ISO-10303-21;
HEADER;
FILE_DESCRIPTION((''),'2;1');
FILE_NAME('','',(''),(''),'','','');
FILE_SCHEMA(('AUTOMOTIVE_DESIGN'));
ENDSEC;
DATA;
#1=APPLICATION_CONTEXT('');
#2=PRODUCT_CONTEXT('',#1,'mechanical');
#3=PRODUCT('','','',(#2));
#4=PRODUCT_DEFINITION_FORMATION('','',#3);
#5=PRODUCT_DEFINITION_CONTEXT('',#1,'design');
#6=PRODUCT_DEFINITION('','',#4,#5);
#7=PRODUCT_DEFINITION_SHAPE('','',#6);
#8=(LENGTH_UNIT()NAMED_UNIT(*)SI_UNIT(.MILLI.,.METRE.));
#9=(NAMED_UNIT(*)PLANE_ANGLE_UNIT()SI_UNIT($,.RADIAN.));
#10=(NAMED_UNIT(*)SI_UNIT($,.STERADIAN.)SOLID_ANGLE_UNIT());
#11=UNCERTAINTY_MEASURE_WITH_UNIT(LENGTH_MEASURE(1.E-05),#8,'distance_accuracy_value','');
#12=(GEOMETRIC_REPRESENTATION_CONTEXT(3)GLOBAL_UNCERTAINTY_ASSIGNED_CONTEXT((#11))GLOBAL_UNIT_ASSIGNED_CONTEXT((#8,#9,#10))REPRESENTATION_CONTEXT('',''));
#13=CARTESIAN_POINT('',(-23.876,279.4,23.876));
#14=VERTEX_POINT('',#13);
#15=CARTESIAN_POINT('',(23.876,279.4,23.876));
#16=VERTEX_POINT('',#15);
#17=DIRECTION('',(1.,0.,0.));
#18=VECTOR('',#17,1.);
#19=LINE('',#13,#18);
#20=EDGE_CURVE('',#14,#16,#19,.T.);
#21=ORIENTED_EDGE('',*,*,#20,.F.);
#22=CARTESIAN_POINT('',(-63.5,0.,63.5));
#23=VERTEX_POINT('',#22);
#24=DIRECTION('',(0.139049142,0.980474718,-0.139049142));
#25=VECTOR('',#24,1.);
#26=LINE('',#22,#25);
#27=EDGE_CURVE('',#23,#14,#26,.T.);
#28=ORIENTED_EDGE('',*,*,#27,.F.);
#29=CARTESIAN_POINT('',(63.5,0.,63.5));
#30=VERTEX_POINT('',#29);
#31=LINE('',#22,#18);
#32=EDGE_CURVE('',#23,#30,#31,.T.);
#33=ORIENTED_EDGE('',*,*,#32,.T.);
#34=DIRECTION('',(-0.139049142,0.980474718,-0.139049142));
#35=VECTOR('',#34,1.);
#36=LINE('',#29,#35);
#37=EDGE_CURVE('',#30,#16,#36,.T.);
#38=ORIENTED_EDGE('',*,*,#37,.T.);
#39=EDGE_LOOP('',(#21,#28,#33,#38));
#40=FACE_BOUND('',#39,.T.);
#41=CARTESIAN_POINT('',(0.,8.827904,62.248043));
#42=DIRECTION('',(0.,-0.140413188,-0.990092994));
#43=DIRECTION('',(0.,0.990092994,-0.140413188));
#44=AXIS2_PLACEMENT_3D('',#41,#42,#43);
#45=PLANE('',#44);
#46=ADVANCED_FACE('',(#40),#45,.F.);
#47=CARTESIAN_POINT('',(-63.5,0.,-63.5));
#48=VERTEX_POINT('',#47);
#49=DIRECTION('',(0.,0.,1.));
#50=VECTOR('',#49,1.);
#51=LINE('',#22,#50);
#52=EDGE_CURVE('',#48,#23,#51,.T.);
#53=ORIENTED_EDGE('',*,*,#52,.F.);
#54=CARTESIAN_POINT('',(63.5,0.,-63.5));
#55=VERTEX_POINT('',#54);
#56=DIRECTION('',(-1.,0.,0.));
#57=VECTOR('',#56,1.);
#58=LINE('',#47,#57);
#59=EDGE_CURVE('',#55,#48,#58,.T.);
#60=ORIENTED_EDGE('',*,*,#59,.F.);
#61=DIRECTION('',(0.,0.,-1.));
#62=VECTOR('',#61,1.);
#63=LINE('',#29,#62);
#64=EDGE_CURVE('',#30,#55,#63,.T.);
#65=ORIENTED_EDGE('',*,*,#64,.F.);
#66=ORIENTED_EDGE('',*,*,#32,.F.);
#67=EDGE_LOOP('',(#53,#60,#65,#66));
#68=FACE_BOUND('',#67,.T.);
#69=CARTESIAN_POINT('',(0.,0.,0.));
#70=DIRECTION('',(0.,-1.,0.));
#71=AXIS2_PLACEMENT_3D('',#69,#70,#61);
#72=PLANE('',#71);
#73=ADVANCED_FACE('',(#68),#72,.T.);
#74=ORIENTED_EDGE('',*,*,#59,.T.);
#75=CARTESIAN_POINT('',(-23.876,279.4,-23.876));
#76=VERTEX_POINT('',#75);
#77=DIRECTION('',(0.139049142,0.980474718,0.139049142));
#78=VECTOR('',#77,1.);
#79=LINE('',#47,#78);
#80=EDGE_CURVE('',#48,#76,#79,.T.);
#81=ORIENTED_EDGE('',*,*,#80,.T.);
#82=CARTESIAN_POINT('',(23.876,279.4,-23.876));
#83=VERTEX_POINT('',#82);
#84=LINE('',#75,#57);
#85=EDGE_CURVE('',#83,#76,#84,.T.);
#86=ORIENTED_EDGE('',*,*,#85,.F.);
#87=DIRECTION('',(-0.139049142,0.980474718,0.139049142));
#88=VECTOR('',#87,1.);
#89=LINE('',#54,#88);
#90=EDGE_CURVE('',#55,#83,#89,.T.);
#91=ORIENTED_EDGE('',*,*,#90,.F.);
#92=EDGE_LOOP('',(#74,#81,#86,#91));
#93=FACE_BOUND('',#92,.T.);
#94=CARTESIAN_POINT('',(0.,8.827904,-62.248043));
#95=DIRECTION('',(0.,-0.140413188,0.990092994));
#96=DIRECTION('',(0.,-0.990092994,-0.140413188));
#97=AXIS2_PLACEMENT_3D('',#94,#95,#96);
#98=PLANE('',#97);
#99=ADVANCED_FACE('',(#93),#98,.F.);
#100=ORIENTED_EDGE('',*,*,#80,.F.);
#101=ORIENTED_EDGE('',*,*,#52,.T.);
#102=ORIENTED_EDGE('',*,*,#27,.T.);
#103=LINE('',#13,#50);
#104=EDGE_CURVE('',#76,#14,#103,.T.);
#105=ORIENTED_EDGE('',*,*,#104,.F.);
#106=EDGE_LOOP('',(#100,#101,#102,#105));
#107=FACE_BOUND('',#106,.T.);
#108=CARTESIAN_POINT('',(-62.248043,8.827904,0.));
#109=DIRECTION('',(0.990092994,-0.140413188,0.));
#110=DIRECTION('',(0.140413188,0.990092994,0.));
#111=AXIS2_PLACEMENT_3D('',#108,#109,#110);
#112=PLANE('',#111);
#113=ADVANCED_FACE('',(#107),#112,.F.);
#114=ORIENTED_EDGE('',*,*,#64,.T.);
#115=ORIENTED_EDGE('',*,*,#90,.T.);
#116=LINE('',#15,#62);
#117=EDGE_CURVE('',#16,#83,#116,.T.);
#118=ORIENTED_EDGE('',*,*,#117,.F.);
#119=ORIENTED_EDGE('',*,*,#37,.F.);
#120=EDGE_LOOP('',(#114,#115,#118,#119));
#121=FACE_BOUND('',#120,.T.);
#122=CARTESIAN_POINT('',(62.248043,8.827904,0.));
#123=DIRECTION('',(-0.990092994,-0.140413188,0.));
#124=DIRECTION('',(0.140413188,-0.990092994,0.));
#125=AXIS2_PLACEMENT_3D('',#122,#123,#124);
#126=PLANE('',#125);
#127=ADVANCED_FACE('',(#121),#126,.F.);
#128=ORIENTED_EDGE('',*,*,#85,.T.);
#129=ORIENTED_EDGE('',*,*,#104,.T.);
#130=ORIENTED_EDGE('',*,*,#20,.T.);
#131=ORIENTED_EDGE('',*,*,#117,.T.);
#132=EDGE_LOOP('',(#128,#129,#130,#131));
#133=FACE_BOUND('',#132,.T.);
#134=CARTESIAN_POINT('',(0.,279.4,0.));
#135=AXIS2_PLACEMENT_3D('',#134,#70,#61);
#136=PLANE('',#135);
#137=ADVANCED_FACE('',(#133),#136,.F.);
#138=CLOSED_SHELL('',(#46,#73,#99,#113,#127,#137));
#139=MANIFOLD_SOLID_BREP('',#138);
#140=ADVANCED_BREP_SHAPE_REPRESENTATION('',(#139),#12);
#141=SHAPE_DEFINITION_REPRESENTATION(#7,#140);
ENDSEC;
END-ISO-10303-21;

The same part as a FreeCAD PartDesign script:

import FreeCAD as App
import Part
import Sketcher

V = App.Vector
Q = App.Units.Quantity


def add_polygon(sketch, points):
    """Adds a closed chain of lines whose ends are joined by coincident constraints."""
    first, n = sketch.GeometryCount, len(points)
    for a, b in zip(points, points[1:] + points[:1]):
        sketch.addGeometry(Part.LineSegment(App.Vector(*a, 0), App.Vector(*b, 0)), False)
    for i in range(n):
        sketch.addConstraint(Sketcher.Constraint("Coincident", first + i, 2, first + (i + 1) % n, 1))

doc = App.newDocument("Part")
body = doc.addObject("PartDesign::Body", "Body")

sketch1 = body.newObject("Sketcher::SketchObject", "Sketch")
sketch1.AttachmentSupport = (doc.getObject("XZ_Plane"), [""])
sketch1.MapMode = "FlatFace"
add_polygon(sketch1, [(-64, 64), (64, 64), (64, -64), (-64, -64)])
sketch1.addConstraint([
    Sketcher.Constraint("Horizontal", 0),
    Sketcher.Constraint("Vertical", 1),
    Sketcher.Constraint("Horizontal", 2),
    Sketcher.Constraint("Vertical", 3),
    Sketcher.Constraint("Symmetric", 0, 2, 2, 2, -1, 1),
    Sketcher.Constraint("Equal", 2, 1),
    Sketcher.Constraint("DistanceX", 0, 1, 0, 2, Q("5 in")),
])

sketch2 = body.newObject("Sketcher::SketchObject", "Sketch001")
sketch2.AttachmentSupport = (doc.getObject("XZ_Plane"), [""])
sketch2.MapMode = "FlatFace"
sketch2.AttachmentOffset = App.Placement(V(0, 0, -11 * 25.4), App.Rotation())
add_polygon(sketch2, [(-24, 24), (24, 24), (24, -24), (-24, -24)])
sketch2.addConstraint([
    Sketcher.Constraint("Horizontal", 0),
    Sketcher.Constraint("Vertical", 1),
    Sketcher.Constraint("Horizontal", 2),
    Sketcher.Constraint("Vertical", 3),
    Sketcher.Constraint("Symmetric", 0, 2, 2, 2, -1, 1),
    Sketcher.Constraint("Equal", 2, 1),
    Sketcher.Constraint("DistanceX", 0, 1, 0, 2, Q("1.88 in")),
])

additiveloft = body.newObject("PartDesign::AdditiveLoft", "AdditiveLoft")
additiveloft.Profile = sketch1
additiveloft.Sections = [sketch2]

doc.recompute()
